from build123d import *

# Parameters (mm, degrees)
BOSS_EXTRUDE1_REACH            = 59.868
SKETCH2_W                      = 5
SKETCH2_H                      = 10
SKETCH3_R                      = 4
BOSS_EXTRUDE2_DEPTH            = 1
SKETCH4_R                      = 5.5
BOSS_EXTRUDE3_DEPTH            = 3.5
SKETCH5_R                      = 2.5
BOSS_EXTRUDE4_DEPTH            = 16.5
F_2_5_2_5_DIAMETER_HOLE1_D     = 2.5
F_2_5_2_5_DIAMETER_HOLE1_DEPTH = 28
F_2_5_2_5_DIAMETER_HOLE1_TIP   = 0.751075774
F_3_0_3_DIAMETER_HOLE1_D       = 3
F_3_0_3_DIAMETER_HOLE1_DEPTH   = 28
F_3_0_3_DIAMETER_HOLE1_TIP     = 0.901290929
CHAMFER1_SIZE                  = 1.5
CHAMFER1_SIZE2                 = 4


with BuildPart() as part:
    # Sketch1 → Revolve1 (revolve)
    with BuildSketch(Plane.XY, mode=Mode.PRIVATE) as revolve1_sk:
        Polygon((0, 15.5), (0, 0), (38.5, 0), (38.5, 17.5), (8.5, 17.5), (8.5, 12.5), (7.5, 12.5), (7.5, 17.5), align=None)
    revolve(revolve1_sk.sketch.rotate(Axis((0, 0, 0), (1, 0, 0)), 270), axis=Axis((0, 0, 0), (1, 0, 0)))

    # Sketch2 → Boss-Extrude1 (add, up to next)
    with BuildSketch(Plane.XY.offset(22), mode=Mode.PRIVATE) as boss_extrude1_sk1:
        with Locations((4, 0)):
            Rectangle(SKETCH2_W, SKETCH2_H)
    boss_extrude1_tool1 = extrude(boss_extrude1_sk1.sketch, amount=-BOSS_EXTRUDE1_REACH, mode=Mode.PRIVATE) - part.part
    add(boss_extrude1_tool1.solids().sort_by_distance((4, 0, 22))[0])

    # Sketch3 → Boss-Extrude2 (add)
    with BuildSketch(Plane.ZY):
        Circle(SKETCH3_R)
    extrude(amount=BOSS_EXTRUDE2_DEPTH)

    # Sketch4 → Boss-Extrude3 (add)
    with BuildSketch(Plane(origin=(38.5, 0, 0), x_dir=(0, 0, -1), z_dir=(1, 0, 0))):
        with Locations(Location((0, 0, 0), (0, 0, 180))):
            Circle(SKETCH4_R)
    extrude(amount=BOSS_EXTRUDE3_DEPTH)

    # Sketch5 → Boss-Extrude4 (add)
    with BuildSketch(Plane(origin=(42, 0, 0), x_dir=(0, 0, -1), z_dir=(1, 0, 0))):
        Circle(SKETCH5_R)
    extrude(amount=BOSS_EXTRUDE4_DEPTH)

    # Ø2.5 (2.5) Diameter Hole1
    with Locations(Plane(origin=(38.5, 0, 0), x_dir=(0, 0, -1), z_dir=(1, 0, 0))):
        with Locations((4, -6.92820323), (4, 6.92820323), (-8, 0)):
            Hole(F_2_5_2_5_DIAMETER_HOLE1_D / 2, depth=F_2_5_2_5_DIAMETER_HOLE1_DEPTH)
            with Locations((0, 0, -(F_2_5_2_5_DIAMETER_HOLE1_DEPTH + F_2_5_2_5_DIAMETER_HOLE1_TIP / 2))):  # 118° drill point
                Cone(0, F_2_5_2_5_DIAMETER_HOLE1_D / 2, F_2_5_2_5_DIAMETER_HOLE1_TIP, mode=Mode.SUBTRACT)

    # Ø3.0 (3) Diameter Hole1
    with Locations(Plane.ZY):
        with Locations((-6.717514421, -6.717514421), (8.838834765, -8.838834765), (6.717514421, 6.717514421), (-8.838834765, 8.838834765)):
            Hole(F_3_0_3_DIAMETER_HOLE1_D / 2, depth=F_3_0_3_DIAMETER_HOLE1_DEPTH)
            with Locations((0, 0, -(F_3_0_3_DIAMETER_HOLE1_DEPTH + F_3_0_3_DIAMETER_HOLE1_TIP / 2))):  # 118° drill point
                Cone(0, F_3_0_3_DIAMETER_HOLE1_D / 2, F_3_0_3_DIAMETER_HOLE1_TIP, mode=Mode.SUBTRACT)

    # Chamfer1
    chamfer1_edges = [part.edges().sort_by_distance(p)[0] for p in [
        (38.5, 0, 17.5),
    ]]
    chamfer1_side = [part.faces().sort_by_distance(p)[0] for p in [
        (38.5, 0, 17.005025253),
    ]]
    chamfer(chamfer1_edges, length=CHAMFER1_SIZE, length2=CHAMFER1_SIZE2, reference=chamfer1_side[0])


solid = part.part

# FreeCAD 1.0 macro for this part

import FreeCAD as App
import Part
import Sketcher

V = App.Vector
Q = App.Units.Quantity


def edges_at(feature, points):
    """Names of the edges that pass closest to the given points."""
    edges = feature.Shape.Edges
    near = lambda p: min(range(len(edges)), key=lambda i: edges[i].distToShape(Part.Vertex(*p))[0])
    return sorted({f"Edge{near(p) + 1}" for p in points})

doc = App.newDocument("Part")
body = doc.addObject("PartDesign::Body", "Body")

# Sketch on XY plane
sketch1 = body.newObject("Sketcher::SketchObject", "Sketch")
sketch1.AttachmentSupport = (doc.getObject("XY_Plane"), [""])
sketch1.MapMode = "FlatFace"
sketch1.addGeometry(Part.LineSegment(V(0, 15.5, 0), V(0, 0, 0)), False)
sketch1.addGeometry(Part.LineSegment(V(0, 0, 0), V(38.5, 0, 0)), False)
sketch1.addGeometry(Part.LineSegment(V(38.5, 0, 0), V(38.5, 17.5, 0)), False)
sketch1.addGeometry(Part.LineSegment(V(38.5, 17.5, 0), V(8.5, 17.5, 0)), False)
sketch1.addGeometry(Part.LineSegment(V(8.5, 17.5, 0), V(8.5, 12.5, 0)), False)
sketch1.addGeometry(Part.LineSegment(V(8.5, 12.5, 0), V(7.5, 12.5, 0)), False)
sketch1.addGeometry(Part.LineSegment(V(7.5, 12.5, 0), V(7.5, 17.5, 0)), False)
sketch1.addGeometry(Part.LineSegment(V(7.5, 17.5, 0), V(0, 15.5, 0)), False)
sketch1.addConstraint(Sketcher.Constraint("Coincident", 0, 2, 1, 1))
sketch1.addConstraint(Sketcher.Constraint("Coincident", 1, 2, 2, 1))
sketch1.addConstraint(Sketcher.Constraint("Coincident", 2, 2, 3, 1))
sketch1.addConstraint(Sketcher.Constraint("Coincident", 3, 2, 4, 1))
sketch1.addConstraint(Sketcher.Constraint("Coincident", 4, 2, 5, 1))
sketch1.addConstraint(Sketcher.Constraint("Coincident", 5, 2, 6, 1))
sketch1.addConstraint(Sketcher.Constraint("Coincident", 6, 2, 7, 1))
sketch1.addConstraint(Sketcher.Constraint("Coincident", 7, 2, 0, 1))
sketch1.addConstraint(Sketcher.Constraint("Vertical", 0))
sketch1.addConstraint(Sketcher.Constraint("Horizontal", 1))
sketch1.addConstraint(Sketcher.Constraint("Vertical", 2))
sketch1.addConstraint(Sketcher.Constraint("Horizontal", 3))
sketch1.addConstraint(Sketcher.Constraint("Vertical", 4))
sketch1.addConstraint(Sketcher.Constraint("Horizontal", 5))
sketch1.addConstraint(Sketcher.Constraint("Vertical", 6))
sketch1.addConstraint(Sketcher.Constraint("Coincident", 0, 2, -1, 1))
sketch1.addConstraint(Sketcher.Constraint("Horizontal", 3, 2, 6, 2))
sketch1.addConstraint(Sketcher.Constraint("DistanceX", 3, 2, 3, 1, Q("30 mm")))
sketch1.addConstraint(Sketcher.Constraint("DistanceX", 5, 2, 5, 1, Q("1 mm")))
sketch1.addConstraint(Sketcher.Constraint("DistanceY", 4, 2, 4, 1, Q("5 mm")))
sketch1.addConstraint(Sketcher.Constraint("DistanceX", 1, 1, 1, 2, Q("38.5 mm")))
sketch1.addConstraint(Sketcher.Constraint("DistanceY", 0, 2, 0, 1, Q("15.5 mm")))
sketch1.addConstraint(Sketcher.Constraint("DistanceY", 2, 1, 2, 2, Q("17.5 mm")))
revolution = body.newObject("PartDesign::Revolution", "Revolution")
revolution.Profile = sketch1
revolution.ReferenceAxis = (sketch1, ["H_Axis"])
revolution.Angle = 360

# Sketch on XY plane
sketch2 = body.newObject("Sketcher::SketchObject", "Sketch001")
sketch2.AttachmentSupport = (doc.getObject("XY_Plane"), [""])
sketch2.MapMode = "FlatFace"
sketch2.AttachmentOffset = App.Placement(V(0, 0, 22), App.Rotation())
sketch2.addGeometry(Part.LineSegment(V(2, 5, 0), V(2, -5, 0)), False)
sketch2.addGeometry(Part.LineSegment(V(2, -5, 0), V(6, -5, 0)), False)
sketch2.addGeometry(Part.LineSegment(V(6, -5, 0), V(6, 5, 0)), False)
sketch2.addGeometry(Part.LineSegment(V(6, 5, 0), V(2, 5, 0)), False)
sketch2.addConstraint(Sketcher.Constraint("Coincident", 0, 2, 1, 1))
sketch2.addConstraint(Sketcher.Constraint("Coincident", 1, 2, 2, 1))
sketch2.addConstraint(Sketcher.Constraint("Coincident", 2, 2, 3, 1))
sketch2.addConstraint(Sketcher.Constraint("Coincident", 3, 2, 0, 1))
sketch2.addConstraint(Sketcher.Constraint("Vertical", 0))
sketch2.addConstraint(Sketcher.Constraint("Horizontal", 1))
sketch2.addConstraint(Sketcher.Constraint("Vertical", 2))
sketch2.addConstraint(Sketcher.Constraint("Horizontal", 3))
sketch2.addConstraint(Sketcher.Constraint("DistanceX", 1, 1, 1, 2, Q("5 mm")))
sketch2.addConstraint(Sketcher.Constraint("DistanceY", 0, 2, 0, 1, Q("10 mm")))
sketch2.addConstraint(Sketcher.Constraint("DistanceY", 0, 2, -1, 1, Q("5 mm")))
sketch2.addConstraint(Sketcher.Constraint("DistanceX", -1, 1, 0, 2, Q("1.5 mm")))
pad1 = body.newObject("PartDesign::Pad", "Pad")
pad1.Profile = sketch2
pad1.Type = "UpToFirst"
pad1.Reversed = True

# Sketch on YZ plane
sketch3 = body.newObject("Sketcher::SketchObject", "Sketch002")
sketch3.AttachmentSupport = (doc.getObject("YZ_Plane"), [""])
sketch3.MapMode = "FlatFace"
sketch3.addGeometry(Part.Circle(V(0, 0, 0), V(0, 0, 1), 4), False)
sketch3.addConstraint(Sketcher.Constraint("Coincident", 0, 3, -1, 1))
sketch3.addConstraint(Sketcher.Constraint("Diameter", 0, Q("8 mm")))
pad2 = body.newObject("PartDesign::Pad", "Pad001")
pad2.Profile = sketch3
pad2.Length = 1
pad2.Reversed = True

# Sketch on YZ plane
sketch4 = body.newObject("Sketcher::SketchObject", "Sketch003")
sketch4.AttachmentSupport = (doc.getObject("YZ_Plane"), [""])
sketch4.MapMode = "FlatFace"
sketch4.AttachmentOffset = App.Placement(V(0, 0, 38.5), App.Rotation())
sketch4.addGeometry(Part.Circle(V(0, 0, 0), V(0, 0, 1), 6), False)
sketch4.addConstraint(Sketcher.Constraint("Coincident", 0, 3, -1, 1))
sketch4.addConstraint(Sketcher.Constraint("Diameter", 0, Q("11 mm")))
pad3 = body.newObject("PartDesign::Pad", "Pad002")
pad3.Profile = sketch4
pad3.Length = 3.5

# Sketch on YZ plane
sketch5 = body.newObject("Sketcher::SketchObject", "Sketch004")
sketch5.AttachmentSupport = (doc.getObject("YZ_Plane"), [""])
sketch5.MapMode = "FlatFace"
sketch5.AttachmentOffset = App.Placement(V(0, 0, 42), App.Rotation())
sketch5.addGeometry(Part.Circle(V(0, 0, 0), V(0, 0, 1), 2.5), False)
sketch5.addConstraint(Sketcher.Constraint("Coincident", 0, 3, -1, 1))
sketch5.addConstraint(Sketcher.Constraint("Diameter", 0, Q("5 mm")))
pad4 = body.newObject("PartDesign::Pad", "Pad003")
pad4.Profile = sketch5
pad4.Length = 16.5

# Sketch on YZ plane
sketch6 = body.newObject("Sketcher::SketchObject", "Sketch005")
sketch6.AttachmentSupport = (doc.getObject("YZ_Plane"), [""])
sketch6.MapMode = "FlatFace"
sketch6.AttachmentOffset = App.Placement(V(0, 0, 38.5), App.Rotation())
sketch6.addGeometry(Part.Circle(V(-6.9, -4, 0), V(0, 0, 1), 1.2), False)
sketch6.addGeometry(Part.Circle(V(6.9, -4, 0), V(0, 0, 1), 1.2), False)
sketch6.addGeometry(Part.Circle(V(0, 8, 0), V(0, 0, 1), 1.2), False)
sketch6.addConstraint(Sketcher.Constraint("Equal", 0, 1))
sketch6.addConstraint(Sketcher.Constraint("Equal", 1, 2))
sketch6.addConstraint(Sketcher.Constraint("Symmetric", 0, 3, 1, 3, -2))
sketch6.addConstraint(Sketcher.Constraint("PointOnObject", 2, 3, -2))
sketch6.addConstraint(Sketcher.Constraint("Diameter", 0, Q("2.5 mm")))
sketch6.addConstraint(Sketcher.Constraint("DistanceY", 0, 3, -1, 1, Q("4 mm")))
sketch6.addConstraint(Sketcher.Constraint("DistanceY", -1, 1, 2, 3, Q("8 mm")))
sketch6.addConstraint(Sketcher.Constraint("DistanceX", 0, 3, -1, 1, Q("6.928203 mm")))
doc.recompute()
hole = body.newObject("PartDesign::Hole", "Hole")
hole.Profile = sketch6
hole.ThreadType = "None"
hole.Diameter = 2.5
hole.DepthType = "Dimension"
hole.Depth = 28
hole.DrillPoint = "Angled"
hole.DrillPointAngle = 118

# Sketch on YZ plane
sketch7 = body.newObject("Sketcher::SketchObject", "Sketch006")
sketch7.AttachmentSupport = (doc.getObject("YZ_Plane"), [""])
sketch7.MapMode = "FlatFace"
sketch7.addGeometry(Part.Circle(V(-6.7, -6.7, 0), V(0, 0, 1), 1.5), False)
sketch7.addGeometry(Part.Circle(V(-8.8, 8.8, 0), V(0, 0, 1), 1.5), False)
sketch7.addGeometry(Part.Circle(V(6.7, 6.7, 0), V(0, 0, 1), 1.5), False)
sketch7.addGeometry(Part.Circle(V(8.8, -8.8, 0), V(0, 0, 1), 1.5), False)
sketch7.addConstraint(Sketcher.Constraint("Equal", 0, 1))
sketch7.addConstraint(Sketcher.Constraint("Equal", 1, 2))
sketch7.addConstraint(Sketcher.Constraint("Equal", 2, 3))
sketch7.addConstraint(Sketcher.Constraint("Symmetric", 0, 3, 2, 3, -1, 1))
sketch7.addConstraint(Sketcher.Constraint("Symmetric", 1, 3, 3, 3, -1, 1))
sketch7.addConstraint(Sketcher.Constraint("Diameter", 0, Q("3 mm")))
sketch7.addConstraint(Sketcher.Constraint("DistanceX", 1, 3, 0, 3, Q("2.12132 mm")))
sketch7.addConstraint(Sketcher.Constraint("DistanceY", 0, 3, 1, 3, Q("15.556349 mm")))
sketch7.addConstraint(Sketcher.Constraint("DistanceX", 1, 3, 2, 3, Q("15.556349 mm")))
sketch7.addConstraint(Sketcher.Constraint("DistanceY", 2, 3, 1, 3, Q("2.12132 mm")))
doc.recompute()
hole2 = body.newObject("PartDesign::Hole", "Hole001")
hole2.Profile = sketch7
hole2.ThreadType = "None"
hole2.Diameter = 3
hole2.DepthType = "Dimension"
hole2.Depth = 28
hole2.DrillPoint = "Angled"
hole2.DrillPointAngle = 118
hole2.Reversed = True
doc.recompute()

chamfer = body.newObject("PartDesign::Chamfer", "Chamfer")
chamfer.Base = (hole2, edges_at(hole2, [(38.5, 0, 17.5)]))
chamfer.ChamferType = "Two distances"
chamfer.Size = 1.5
chamfer.Size2 = 4

doc.recompute()
